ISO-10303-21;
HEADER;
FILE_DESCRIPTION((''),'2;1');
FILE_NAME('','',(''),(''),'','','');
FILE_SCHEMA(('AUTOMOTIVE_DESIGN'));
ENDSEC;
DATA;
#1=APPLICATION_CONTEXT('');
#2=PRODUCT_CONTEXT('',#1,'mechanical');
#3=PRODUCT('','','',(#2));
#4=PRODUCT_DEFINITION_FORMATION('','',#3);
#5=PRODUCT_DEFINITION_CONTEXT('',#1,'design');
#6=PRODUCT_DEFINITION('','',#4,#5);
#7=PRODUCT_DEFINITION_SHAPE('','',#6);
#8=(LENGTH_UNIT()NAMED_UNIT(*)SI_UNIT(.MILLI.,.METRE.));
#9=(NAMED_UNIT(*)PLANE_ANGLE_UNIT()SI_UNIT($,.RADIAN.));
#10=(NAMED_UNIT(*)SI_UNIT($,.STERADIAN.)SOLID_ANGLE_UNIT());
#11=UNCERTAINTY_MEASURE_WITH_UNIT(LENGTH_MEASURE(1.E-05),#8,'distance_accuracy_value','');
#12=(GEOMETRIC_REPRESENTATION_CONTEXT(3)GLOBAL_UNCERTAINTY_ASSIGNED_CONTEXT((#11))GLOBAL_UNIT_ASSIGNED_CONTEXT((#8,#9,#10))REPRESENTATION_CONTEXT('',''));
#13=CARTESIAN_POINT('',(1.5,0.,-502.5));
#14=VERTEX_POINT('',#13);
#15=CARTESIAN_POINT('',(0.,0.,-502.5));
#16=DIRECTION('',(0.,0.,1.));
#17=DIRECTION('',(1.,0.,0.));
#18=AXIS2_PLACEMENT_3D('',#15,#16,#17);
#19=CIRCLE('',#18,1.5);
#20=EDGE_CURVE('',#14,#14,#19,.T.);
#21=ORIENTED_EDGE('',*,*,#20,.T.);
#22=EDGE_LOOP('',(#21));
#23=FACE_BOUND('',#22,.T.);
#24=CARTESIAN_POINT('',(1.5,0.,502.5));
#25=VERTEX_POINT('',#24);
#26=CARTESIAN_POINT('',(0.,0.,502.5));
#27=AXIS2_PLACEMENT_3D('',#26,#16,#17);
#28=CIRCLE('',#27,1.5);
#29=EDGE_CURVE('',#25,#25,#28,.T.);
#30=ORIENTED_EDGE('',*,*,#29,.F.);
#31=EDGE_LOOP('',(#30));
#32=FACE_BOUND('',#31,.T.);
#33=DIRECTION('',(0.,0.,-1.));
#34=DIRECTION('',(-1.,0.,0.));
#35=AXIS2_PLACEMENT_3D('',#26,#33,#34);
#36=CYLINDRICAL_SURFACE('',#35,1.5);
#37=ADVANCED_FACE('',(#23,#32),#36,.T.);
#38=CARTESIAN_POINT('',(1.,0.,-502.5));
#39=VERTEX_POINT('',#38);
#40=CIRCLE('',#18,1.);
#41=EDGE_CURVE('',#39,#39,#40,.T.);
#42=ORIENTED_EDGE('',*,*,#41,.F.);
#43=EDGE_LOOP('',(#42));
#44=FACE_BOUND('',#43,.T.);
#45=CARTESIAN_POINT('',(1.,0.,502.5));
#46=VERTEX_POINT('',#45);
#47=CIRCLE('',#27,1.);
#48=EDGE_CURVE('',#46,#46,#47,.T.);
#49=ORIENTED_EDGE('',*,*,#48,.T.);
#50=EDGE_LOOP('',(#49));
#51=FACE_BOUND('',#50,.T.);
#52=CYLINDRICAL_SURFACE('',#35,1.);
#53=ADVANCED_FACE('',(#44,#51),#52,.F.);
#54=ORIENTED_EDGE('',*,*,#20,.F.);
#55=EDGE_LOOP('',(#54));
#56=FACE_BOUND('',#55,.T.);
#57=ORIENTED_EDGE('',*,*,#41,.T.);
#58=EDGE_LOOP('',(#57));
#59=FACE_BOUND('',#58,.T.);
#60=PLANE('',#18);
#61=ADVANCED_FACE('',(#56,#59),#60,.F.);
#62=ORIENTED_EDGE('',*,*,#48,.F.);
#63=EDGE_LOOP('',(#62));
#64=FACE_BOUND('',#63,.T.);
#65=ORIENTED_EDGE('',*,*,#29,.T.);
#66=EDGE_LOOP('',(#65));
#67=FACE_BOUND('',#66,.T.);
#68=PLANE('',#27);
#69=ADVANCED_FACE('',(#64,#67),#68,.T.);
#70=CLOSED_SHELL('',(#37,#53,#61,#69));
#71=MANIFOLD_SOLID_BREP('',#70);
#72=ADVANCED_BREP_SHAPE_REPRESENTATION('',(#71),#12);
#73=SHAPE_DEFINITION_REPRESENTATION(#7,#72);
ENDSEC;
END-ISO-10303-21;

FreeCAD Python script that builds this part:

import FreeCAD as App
import Part
import Sketcher

V = App.Vector
Q = App.Units.Quantity

doc = App.newDocument("Part")
params = doc.addObject("Spreadsheet::Sheet", "Params")
for row, (alias, value) in enumerate([
    ("sketch1_diameter", "3 mm"),
    ("sketch1_diameter2", "2 mm"),
    ("pad1_length", "1005 mm"),
], start=1):
    params.set(f"A{row}", alias)
    params.set(f"B{row}", "=" + value)
    params.setAlias(f"B{row}", alias)

body = doc.addObject("PartDesign::Body", "Body")

sketch1 = doc.addObject("Sketcher::SketchObject", "Sketch")
body.addObject(sketch1)
sketch1.AttachmentSupport = (doc.XY_Plane, [""])
sketch1.MapMode = "FlatFace"
sketch1.addGeometry(Part.Circle(V(0, 0, 0), V(0, 0, 1), 1.5), False)
sketch1.addGeometry(Part.Circle(V(0, 0, 0), V(0, 0, 1), 1), False)
sketch1.addConstraint(Sketcher.Constraint("Coincident", 0, 3, -1, 1))
sketch1.addConstraint(Sketcher.Constraint("Coincident", 1, 3, -1, 1))
sketch1.addConstraint(Sketcher.Constraint("Diameter", 0, Q("3 mm")))
sketch1.addConstraint(Sketcher.Constraint("Diameter", 1, Q("2 mm")))
sketch1.setExpression("Constraints[2]", "Params.sketch1_diameter")
sketch1.setExpression("Constraints[3]", "Params.sketch1_diameter2")
pad1 = doc.addObject("PartDesign::Pad", "Pad")
body.addObject(pad1)
pad1.Profile = sketch1
pad1.setExpression("Length", "Params.pad1_length")
pad1.Midplane = True

doc.recompute()
